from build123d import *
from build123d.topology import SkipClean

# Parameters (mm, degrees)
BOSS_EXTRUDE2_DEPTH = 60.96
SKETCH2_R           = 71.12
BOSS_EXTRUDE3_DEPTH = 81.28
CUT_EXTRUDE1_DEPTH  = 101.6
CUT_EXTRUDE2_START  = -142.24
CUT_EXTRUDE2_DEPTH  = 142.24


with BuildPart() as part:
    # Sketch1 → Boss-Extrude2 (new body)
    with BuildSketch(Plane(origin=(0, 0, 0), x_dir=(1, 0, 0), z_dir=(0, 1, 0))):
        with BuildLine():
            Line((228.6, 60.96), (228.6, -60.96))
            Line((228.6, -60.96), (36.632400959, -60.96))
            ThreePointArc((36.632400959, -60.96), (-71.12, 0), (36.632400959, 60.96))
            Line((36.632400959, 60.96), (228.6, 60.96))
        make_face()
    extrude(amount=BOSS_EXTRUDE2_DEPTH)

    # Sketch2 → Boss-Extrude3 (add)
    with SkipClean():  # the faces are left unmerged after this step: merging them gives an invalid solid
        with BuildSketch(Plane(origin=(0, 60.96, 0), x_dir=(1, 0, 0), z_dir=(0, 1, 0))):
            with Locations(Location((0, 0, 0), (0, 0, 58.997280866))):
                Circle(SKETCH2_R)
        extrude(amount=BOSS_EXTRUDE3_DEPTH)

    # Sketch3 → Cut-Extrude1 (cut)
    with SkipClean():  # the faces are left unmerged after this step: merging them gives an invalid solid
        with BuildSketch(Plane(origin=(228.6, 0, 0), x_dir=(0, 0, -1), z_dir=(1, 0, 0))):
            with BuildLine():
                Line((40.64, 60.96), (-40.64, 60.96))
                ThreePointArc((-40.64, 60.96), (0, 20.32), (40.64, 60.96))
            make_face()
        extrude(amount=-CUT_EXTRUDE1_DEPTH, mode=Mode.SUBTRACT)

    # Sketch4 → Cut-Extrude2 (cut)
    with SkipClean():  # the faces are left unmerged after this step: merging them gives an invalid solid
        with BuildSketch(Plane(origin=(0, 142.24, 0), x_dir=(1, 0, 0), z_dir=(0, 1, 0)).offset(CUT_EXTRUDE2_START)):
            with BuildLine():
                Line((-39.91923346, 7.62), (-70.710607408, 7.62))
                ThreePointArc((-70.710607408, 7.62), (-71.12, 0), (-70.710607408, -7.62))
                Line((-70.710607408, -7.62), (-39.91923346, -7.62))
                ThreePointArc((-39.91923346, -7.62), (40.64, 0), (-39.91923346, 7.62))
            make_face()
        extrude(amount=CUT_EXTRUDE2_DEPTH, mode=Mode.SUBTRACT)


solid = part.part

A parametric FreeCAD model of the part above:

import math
import FreeCAD as App
import Part
import Sketcher
from FreeCAD import Vector
Q = App.Units.Quantity

doc = App.newDocument("Part")
body = doc.addObject("PartDesign::Body", "Body")

# Sketch on XZ plane
sketch1 = doc.addObject("Sketcher::SketchObject", "Sketch")
body.addObject(sketch1)
sketch1.AttachmentSupport = (doc.XZ_Plane, [""])
sketch1.MapMode = "FlatFace"
sketch1.addGeometry([
    Part.LineSegment(Vector(229, 61, 0), Vector(229, -61, 0)),
    Part.LineSegment(Vector(229, -61, 0), Vector(37, -61, 0)),
    Part.ArcOfCircle(Part.Circle(Vector(0, 0, 0), Vector(0, 0, 1), 71), math.radians(59), math.radians(301)),
    Part.LineSegment(Vector(37, 61, 0), Vector(229, 61, 0)),
], False)
sketch1.addConstraint([
    Sketcher.Constraint("Coincident", 0, 2, 1, 1),
    Sketcher.Constraint("Coincident", 1, 2, 2, 2),
    Sketcher.Constraint("Coincident", 2, 1, 3, 1),
    Sketcher.Constraint("Coincident", 3, 2, 0, 1),
    Sketcher.Constraint("Vertical", 0),
    Sketcher.Constraint("Horizontal", 1),
    Sketcher.Constraint("Horizontal", 3),
    Sketcher.Constraint("Coincident", 2, 3, -1, 1),
    Sketcher.Constraint("Vertical", 1, 2, 2, 1),
    Sketcher.Constraint("Radius", 2, Q("2.8 in")),
    Sketcher.Constraint("DistanceY", 0, 2, 0, 1, Q("4.8 in")),
    Sketcher.Constraint("DistanceX", -1, 1, 0, 2, Q("9 in")),
])
pad1 = doc.addObject("PartDesign::Pad", "Pad")
body.addObject(pad1)
pad1.Profile = sketch1
pad1.Length = Q("2.4 in")
pad1.Reversed = True

# Sketch on XZ plane
sketch2 = doc.addObject("Sketcher::SketchObject", "Sketch001")
body.addObject(sketch2)
sketch2.AttachmentSupport = (doc.XZ_Plane, [""])
sketch2.MapMode = "FlatFace"
sketch2.AttachmentOffset = App.Placement(Vector(0, 0, -2.4 * 25.4), App.Rotation())
sketch2.addGeometry(Part.Circle(Vector(0, 0, 0), Vector(0, 0, 1), 71), False)
sketch2.addConstraint([
    Sketcher.Constraint("Coincident", 0, 3, -1, 1),
    Sketcher.Constraint("Diameter", 0, Q("5.6 in")),
])
pad2 = doc.addObject("PartDesign::Pad", "Pad001")
body.addObject(pad2)
pad2.Profile = sketch2
pad2.Length = Q("3.2 in")
pad2.Reversed = True

# Sketch on YZ plane
sketch3 = doc.addObject("Sketcher::SketchObject", "Sketch002")
body.addObject(sketch3)
sketch3.AttachmentSupport = (doc.YZ_Plane, [""])
sketch3.MapMode = "FlatFace"
sketch3.AttachmentOffset = App.Placement(Vector(0, 0, 9 * 25.4), App.Rotation())
sketch3.addGeometry([
    Part.LineSegment(Vector(61, -41, 0), Vector(61, 41, 0)),
    Part.ArcOfCircle(Part.Circle(Vector(61, 0, 0), Vector(0, 0, 1), 41), math.radians(90), math.radians(270)),
], False)
sketch3.addConstraint([
    Sketcher.Constraint("Coincident", 0, 1, 1, 2),
    Sketcher.Constraint("Coincident", 1, 1, 0, 2),
    Sketcher.Constraint("Vertical", 0),
    Sketcher.Constraint("PointOnObject", 1, 3, -1),
    Sketcher.Constraint("Vertical", 1, 3, 0, 1),
    Sketcher.Constraint("Radius", 1, Q("1.6 in")),
    Sketcher.Constraint("DistanceX", -1, 1, 1, 3, Q("2.4 in")),
])
pocket1 = doc.addObject("PartDesign::Pocket", "Pocket")
body.addObject(pocket1)
pocket1.Profile = sketch3
pocket1.Length = Q("4 in")

# Sketch on XZ plane
sketch4 = doc.addObject("Sketcher::SketchObject", "Sketch003")
body.addObject(sketch4)
sketch4.AttachmentSupport = (doc.XZ_Plane, [""])
sketch4.MapMode = "FlatFace"
sketch4.addGeometry([
    Part.LineSegment(Vector(-40, -8, 0), Vector(-71, -8, 0)),
    Part.ArcOfCircle(Part.Circle(Vector(0, 0, 0), Vector(0, 0, 1), 71), math.radians(173.85), math.radians(186.15)),
    Part.LineSegment(Vector(-71, 8, 0), Vector(-40, 8, 0)),
    Part.ArcOfCircle(Part.Circle(Vector(0, 0, 0), Vector(0, 0, 1), 41), math.radians(-169), math.radians(169)),
], False)
sketch4.addConstraint([
    Sketcher.Constraint("Coincident", 0, 2, 1, 2),
    Sketcher.Constraint("Coincident", 1, 1, 2, 1),
    Sketcher.Constraint("Coincident", 2, 2, 3, 2),
    Sketcher.Constraint("Coincident", 3, 1, 0, 1),
    Sketcher.Constraint("Horizontal", 0),
    Sketcher.Constraint("Horizontal", 2),
    Sketcher.Constraint("Coincident", 1, 3, -1, 1),
    Sketcher.Constraint("Coincident", 3, 3, -1, 1),
    Sketcher.Constraint("Vertical", 0, 2, 1, 1),
    Sketcher.Constraint("Radius", 1, Q("2.8 in")),
    Sketcher.Constraint("Radius", 3, Q("1.6 in")),
    Sketcher.Constraint("DistanceY", 0, 2, -1, 1, Q("0.3 in")),
])
pocket2 = doc.addObject("PartDesign::Pocket", "Pocket001")
body.addObject(pocket2)
pocket2.Profile = sketch4
pocket2.Length = Q("5.6 in")

doc.recompute()
